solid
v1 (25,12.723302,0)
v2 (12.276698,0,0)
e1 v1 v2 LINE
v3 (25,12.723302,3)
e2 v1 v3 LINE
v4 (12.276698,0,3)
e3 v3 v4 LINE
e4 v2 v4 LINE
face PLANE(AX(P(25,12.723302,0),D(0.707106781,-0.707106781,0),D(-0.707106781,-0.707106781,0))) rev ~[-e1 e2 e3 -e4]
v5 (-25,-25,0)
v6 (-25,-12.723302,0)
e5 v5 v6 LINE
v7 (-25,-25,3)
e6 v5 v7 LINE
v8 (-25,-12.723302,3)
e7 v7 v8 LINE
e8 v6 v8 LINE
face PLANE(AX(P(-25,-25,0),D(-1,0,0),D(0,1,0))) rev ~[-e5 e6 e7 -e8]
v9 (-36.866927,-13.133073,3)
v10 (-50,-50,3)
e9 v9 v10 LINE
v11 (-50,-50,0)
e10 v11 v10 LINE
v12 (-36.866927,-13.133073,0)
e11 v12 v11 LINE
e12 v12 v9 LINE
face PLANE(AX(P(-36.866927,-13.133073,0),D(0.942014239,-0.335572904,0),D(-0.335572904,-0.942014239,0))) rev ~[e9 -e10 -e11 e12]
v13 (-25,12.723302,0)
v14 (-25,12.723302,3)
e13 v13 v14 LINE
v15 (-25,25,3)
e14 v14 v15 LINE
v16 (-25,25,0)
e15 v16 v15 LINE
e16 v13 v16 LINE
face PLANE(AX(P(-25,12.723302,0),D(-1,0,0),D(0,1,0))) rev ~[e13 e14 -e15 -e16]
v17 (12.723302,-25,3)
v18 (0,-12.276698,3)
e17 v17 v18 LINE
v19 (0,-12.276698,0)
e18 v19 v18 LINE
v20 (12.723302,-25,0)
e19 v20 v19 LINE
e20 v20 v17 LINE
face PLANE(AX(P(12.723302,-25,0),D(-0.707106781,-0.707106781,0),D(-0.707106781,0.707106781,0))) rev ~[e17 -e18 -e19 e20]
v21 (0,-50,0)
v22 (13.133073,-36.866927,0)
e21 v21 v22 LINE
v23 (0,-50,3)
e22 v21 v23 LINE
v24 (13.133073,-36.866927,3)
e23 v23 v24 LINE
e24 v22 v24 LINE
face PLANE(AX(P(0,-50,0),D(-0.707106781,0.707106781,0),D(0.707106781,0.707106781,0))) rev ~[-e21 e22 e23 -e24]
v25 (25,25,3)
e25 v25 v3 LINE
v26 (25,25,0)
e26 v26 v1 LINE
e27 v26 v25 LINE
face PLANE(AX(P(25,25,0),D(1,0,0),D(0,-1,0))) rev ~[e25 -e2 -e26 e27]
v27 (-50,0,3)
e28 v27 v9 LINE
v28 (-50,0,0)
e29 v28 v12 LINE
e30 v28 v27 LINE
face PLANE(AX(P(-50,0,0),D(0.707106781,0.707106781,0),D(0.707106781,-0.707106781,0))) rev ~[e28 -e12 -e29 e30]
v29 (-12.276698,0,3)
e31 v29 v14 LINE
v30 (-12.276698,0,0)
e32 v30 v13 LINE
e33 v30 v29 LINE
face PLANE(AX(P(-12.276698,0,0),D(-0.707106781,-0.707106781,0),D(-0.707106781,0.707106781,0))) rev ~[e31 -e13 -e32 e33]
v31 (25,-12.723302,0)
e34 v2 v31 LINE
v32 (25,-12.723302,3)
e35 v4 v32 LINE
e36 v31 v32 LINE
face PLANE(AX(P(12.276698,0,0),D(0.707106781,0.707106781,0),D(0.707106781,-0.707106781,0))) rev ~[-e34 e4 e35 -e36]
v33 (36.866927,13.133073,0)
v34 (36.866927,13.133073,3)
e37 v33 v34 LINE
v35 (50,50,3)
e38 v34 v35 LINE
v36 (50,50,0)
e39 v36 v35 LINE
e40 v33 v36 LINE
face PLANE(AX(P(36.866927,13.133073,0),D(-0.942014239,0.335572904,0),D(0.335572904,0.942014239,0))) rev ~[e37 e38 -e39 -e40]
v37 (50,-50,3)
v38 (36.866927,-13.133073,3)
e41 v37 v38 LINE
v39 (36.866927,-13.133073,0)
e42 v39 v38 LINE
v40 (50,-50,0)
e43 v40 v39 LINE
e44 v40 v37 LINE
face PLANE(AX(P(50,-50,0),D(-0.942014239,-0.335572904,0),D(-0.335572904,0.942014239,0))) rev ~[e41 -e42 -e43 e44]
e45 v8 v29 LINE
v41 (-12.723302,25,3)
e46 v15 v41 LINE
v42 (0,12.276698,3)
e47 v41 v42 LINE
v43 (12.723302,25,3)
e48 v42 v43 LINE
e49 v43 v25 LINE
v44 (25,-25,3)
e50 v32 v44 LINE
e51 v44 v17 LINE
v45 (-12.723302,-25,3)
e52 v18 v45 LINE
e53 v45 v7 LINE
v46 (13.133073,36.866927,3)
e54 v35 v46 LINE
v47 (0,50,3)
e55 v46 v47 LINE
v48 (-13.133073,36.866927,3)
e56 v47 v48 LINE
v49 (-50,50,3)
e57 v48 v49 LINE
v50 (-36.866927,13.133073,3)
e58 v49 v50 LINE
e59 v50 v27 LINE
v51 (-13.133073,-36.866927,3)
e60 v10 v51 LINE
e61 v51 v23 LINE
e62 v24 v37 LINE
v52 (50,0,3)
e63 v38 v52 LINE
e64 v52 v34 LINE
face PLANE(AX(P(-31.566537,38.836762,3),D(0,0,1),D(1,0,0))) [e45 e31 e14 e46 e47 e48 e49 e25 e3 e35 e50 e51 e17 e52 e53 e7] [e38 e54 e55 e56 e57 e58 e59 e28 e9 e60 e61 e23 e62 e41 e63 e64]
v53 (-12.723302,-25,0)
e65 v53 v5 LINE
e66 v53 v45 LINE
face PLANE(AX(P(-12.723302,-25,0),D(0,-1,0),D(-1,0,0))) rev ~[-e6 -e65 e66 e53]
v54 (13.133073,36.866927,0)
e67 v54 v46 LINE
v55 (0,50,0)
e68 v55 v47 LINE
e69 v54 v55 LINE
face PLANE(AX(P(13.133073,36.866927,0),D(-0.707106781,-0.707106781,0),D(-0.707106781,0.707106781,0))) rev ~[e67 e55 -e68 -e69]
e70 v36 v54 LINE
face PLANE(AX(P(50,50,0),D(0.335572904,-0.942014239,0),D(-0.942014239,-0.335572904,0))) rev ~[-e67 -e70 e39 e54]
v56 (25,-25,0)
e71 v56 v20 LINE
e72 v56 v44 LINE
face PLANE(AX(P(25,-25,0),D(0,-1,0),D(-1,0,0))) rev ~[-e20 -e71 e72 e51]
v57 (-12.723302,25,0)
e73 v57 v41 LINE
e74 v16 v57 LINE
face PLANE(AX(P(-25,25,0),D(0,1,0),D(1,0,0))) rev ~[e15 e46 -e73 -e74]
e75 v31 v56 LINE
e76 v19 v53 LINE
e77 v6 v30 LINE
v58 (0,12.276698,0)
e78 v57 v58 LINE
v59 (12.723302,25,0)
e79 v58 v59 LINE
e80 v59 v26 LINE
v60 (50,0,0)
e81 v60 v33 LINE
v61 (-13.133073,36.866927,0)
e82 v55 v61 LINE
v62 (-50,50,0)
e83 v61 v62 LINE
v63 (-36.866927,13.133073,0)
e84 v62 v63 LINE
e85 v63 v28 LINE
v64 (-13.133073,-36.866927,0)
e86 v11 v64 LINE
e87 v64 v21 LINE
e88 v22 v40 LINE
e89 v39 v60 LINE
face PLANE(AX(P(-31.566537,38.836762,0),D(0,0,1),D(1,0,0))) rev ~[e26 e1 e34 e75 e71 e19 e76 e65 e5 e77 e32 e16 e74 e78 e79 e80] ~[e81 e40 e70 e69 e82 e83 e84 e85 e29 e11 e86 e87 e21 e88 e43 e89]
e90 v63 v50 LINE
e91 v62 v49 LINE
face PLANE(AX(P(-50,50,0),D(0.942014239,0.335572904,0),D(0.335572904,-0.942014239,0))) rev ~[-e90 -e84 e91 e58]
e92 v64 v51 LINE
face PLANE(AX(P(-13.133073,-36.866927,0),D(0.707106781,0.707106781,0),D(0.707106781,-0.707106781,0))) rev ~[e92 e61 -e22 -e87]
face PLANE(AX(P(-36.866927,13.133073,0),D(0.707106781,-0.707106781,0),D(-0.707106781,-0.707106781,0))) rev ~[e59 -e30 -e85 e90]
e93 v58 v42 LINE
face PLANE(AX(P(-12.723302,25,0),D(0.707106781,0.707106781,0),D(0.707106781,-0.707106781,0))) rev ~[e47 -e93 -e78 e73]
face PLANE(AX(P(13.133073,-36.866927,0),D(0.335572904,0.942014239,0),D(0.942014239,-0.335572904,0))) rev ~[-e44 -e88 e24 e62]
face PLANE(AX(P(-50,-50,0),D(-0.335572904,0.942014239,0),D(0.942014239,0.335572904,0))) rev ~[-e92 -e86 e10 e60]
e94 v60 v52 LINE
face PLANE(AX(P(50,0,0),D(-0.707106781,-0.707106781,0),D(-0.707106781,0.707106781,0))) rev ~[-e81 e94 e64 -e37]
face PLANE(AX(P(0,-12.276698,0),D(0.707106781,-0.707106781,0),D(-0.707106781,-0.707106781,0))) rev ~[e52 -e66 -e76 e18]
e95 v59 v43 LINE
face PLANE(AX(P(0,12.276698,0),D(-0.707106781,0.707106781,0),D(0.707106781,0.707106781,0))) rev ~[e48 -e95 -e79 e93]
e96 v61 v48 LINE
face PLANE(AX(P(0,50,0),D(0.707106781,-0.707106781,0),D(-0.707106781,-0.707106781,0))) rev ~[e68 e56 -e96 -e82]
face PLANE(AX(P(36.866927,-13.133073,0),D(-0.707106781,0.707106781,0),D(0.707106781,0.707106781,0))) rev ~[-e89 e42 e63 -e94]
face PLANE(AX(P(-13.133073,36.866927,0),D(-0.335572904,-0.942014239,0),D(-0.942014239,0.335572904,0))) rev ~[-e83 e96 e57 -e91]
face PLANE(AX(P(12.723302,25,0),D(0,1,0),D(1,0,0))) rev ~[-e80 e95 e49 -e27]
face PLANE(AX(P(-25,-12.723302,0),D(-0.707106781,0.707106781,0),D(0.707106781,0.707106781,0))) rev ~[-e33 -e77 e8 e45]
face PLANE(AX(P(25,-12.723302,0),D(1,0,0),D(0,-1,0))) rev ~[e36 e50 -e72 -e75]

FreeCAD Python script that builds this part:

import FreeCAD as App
import Part
import Sketcher

V = App.Vector


def add_polygon(sketch, points):
    """Adds a closed chain of lines whose ends are joined by coincident constraints."""
    first, n = sketch.GeometryCount, len(points)
    for a, b in zip(points, points[1:] + points[:1]):
        sketch.addGeometry(Part.LineSegment(App.Vector(*a, 0), App.Vector(*b, 0)), False)
    for i in range(n):
        sketch.addConstraint(Sketcher.Constraint("Coincident", first + i, 2, first + (i + 1) % n, 1))

doc = App.newDocument("Part")
body = doc.addObject("PartDesign::Body", "Body")

# Sketch on XY plane
sketch1 = doc.addObject("Sketcher::SketchObject", "Sketch")
body.addObject(sketch1)
sketch1.AttachmentSupport = (doc.XY_Plane, [""])
sketch1.MapMode = "FlatFace"
add_polygon(sketch1, [(-13, 37), (-50, 50), (-37, 13), (-50, 0), (-37, -13), (-50, -50), (-13, -37), (0, -50), (13, -37), (50, -50), (37, -13), (50, 0), (37, 13), (50, 50), (13, 37), (0, 50)])  # lines 0-15
add_polygon(sketch1, [(25, 25), (25, 13), (12, 0), (25, -13), (25, -25), (13, -25), (0, -12), (-13, -25), (-25, -25), (-25, -13), (-12, 0), (-25, 13), (-25, 25), (-13, 25), (0, 12), (13, 25)])  # lines 16-31
sketch1.addConstraint([
    Sketcher.Constraint("Vertical", 16),
    Sketcher.Constraint("Vertical", 19),
    Sketcher.Constraint("Horizontal", 20),
    Sketcher.Constraint("Horizontal", 23),
    Sketcher.Constraint("Vertical", 24),
    Sketcher.Constraint("Vertical", 27),
    Sketcher.Constraint("Horizontal", 28),
    Sketcher.Constraint("Horizontal", 31),
    Sketcher.Constraint("Symmetric", 0, 2, 8, 2, -1, 1),
    Sketcher.Constraint("Symmetric", 1, 2, 9, 2, -1, 1),
    Sketcher.Constraint("Symmetric", 2, 2, 10, 2, -1, 1),
    Sketcher.Constraint("Symmetric", 3, 2, 11, 2, -1, 1),
    Sketcher.Constraint("Symmetric", 4, 2, 12, 2, -1, 1),
    Sketcher.Constraint("Symmetric", 5, 2, 13, 2, -1, 1),
    Sketcher.Constraint("Symmetric", 6, 2, 14, 2, -1, 1),
    Sketcher.Constraint("Symmetric", 7, 2, 15, 2, -1, 1),
    Sketcher.Constraint("Symmetric", 16, 2, 24, 2, -1, 1),
    Sketcher.Constraint("Symmetric", 17, 2, 25, 2, -1, 1),
    Sketcher.Constraint("Symmetric", 18, 2, 26, 2, -1, 1),
    Sketcher.Constraint("Symmetric", 20, 2, 28, 2, -1, 1),
    Sketcher.Constraint("Symmetric", 21, 2, 29, 2, -1, 1),
    Sketcher.Constraint("Symmetric", 22, 2, 30, 2, -1, 1),
    Sketcher.Constraint("Symmetric", 5, 2, 7, 2, -2),
    Sketcher.Constraint("Symmetric", 4, 2, 8, 2, -2),
    Sketcher.Constraint("Symmetric", 3, 2, 9, 2, -2),
    Sketcher.Constraint("Symmetric", 20, 2, 22, 2, -2),
    Sketcher.Constraint("Symmetric", 18, 2, 24, 2, -2),
    Sketcher.Constraint("PointOnObject", 2, 2, -1),
    Sketcher.Constraint("PointOnObject", 6, 2, -2),
    Sketcher.Constraint("PointOnObject", 17, 2, -1),
    Sketcher.Constraint("PointOnObject", 21, 2, -2),
    Sketcher.Constraint("Perpendicular", 2, 3),
    Sketcher.Constraint("Perpendicular", 0, 4),
    Sketcher.Constraint("Parallel", 3, 6),
    Sketcher.Constraint("Parallel", 15, 17),
    Sketcher.Constraint("Parallel", 18, 21),
    Sketcher.Constraint("Horizontal", 4, 2, 6, 2),
    Sketcher.Constraint("Vertical", 0, 2, 2, 2),
    Sketcher.Constraint("Equal", 31, 16),
    Sketcher.Constraint("Equal", 0, 1),
    Sketcher.Constraint("Equal", 18, 21),
    Sketcher.Constraint("DistanceX", 0, 2, -1, 1, 50.0),
    Sketcher.Constraint("DistanceX", -1, 1, 16, 2, 25.0),
    Sketcher.Constraint("Distance", 2, 18.57297),
    Sketcher.Constraint("DistanceX", 20, 2, 20, 1, 12.276698),
])
pad1 = doc.addObject("PartDesign::Pad", "Pad")
body.addObject(pad1)
pad1.Profile = sketch1
pad1.Length = 3

doc.recompute()
